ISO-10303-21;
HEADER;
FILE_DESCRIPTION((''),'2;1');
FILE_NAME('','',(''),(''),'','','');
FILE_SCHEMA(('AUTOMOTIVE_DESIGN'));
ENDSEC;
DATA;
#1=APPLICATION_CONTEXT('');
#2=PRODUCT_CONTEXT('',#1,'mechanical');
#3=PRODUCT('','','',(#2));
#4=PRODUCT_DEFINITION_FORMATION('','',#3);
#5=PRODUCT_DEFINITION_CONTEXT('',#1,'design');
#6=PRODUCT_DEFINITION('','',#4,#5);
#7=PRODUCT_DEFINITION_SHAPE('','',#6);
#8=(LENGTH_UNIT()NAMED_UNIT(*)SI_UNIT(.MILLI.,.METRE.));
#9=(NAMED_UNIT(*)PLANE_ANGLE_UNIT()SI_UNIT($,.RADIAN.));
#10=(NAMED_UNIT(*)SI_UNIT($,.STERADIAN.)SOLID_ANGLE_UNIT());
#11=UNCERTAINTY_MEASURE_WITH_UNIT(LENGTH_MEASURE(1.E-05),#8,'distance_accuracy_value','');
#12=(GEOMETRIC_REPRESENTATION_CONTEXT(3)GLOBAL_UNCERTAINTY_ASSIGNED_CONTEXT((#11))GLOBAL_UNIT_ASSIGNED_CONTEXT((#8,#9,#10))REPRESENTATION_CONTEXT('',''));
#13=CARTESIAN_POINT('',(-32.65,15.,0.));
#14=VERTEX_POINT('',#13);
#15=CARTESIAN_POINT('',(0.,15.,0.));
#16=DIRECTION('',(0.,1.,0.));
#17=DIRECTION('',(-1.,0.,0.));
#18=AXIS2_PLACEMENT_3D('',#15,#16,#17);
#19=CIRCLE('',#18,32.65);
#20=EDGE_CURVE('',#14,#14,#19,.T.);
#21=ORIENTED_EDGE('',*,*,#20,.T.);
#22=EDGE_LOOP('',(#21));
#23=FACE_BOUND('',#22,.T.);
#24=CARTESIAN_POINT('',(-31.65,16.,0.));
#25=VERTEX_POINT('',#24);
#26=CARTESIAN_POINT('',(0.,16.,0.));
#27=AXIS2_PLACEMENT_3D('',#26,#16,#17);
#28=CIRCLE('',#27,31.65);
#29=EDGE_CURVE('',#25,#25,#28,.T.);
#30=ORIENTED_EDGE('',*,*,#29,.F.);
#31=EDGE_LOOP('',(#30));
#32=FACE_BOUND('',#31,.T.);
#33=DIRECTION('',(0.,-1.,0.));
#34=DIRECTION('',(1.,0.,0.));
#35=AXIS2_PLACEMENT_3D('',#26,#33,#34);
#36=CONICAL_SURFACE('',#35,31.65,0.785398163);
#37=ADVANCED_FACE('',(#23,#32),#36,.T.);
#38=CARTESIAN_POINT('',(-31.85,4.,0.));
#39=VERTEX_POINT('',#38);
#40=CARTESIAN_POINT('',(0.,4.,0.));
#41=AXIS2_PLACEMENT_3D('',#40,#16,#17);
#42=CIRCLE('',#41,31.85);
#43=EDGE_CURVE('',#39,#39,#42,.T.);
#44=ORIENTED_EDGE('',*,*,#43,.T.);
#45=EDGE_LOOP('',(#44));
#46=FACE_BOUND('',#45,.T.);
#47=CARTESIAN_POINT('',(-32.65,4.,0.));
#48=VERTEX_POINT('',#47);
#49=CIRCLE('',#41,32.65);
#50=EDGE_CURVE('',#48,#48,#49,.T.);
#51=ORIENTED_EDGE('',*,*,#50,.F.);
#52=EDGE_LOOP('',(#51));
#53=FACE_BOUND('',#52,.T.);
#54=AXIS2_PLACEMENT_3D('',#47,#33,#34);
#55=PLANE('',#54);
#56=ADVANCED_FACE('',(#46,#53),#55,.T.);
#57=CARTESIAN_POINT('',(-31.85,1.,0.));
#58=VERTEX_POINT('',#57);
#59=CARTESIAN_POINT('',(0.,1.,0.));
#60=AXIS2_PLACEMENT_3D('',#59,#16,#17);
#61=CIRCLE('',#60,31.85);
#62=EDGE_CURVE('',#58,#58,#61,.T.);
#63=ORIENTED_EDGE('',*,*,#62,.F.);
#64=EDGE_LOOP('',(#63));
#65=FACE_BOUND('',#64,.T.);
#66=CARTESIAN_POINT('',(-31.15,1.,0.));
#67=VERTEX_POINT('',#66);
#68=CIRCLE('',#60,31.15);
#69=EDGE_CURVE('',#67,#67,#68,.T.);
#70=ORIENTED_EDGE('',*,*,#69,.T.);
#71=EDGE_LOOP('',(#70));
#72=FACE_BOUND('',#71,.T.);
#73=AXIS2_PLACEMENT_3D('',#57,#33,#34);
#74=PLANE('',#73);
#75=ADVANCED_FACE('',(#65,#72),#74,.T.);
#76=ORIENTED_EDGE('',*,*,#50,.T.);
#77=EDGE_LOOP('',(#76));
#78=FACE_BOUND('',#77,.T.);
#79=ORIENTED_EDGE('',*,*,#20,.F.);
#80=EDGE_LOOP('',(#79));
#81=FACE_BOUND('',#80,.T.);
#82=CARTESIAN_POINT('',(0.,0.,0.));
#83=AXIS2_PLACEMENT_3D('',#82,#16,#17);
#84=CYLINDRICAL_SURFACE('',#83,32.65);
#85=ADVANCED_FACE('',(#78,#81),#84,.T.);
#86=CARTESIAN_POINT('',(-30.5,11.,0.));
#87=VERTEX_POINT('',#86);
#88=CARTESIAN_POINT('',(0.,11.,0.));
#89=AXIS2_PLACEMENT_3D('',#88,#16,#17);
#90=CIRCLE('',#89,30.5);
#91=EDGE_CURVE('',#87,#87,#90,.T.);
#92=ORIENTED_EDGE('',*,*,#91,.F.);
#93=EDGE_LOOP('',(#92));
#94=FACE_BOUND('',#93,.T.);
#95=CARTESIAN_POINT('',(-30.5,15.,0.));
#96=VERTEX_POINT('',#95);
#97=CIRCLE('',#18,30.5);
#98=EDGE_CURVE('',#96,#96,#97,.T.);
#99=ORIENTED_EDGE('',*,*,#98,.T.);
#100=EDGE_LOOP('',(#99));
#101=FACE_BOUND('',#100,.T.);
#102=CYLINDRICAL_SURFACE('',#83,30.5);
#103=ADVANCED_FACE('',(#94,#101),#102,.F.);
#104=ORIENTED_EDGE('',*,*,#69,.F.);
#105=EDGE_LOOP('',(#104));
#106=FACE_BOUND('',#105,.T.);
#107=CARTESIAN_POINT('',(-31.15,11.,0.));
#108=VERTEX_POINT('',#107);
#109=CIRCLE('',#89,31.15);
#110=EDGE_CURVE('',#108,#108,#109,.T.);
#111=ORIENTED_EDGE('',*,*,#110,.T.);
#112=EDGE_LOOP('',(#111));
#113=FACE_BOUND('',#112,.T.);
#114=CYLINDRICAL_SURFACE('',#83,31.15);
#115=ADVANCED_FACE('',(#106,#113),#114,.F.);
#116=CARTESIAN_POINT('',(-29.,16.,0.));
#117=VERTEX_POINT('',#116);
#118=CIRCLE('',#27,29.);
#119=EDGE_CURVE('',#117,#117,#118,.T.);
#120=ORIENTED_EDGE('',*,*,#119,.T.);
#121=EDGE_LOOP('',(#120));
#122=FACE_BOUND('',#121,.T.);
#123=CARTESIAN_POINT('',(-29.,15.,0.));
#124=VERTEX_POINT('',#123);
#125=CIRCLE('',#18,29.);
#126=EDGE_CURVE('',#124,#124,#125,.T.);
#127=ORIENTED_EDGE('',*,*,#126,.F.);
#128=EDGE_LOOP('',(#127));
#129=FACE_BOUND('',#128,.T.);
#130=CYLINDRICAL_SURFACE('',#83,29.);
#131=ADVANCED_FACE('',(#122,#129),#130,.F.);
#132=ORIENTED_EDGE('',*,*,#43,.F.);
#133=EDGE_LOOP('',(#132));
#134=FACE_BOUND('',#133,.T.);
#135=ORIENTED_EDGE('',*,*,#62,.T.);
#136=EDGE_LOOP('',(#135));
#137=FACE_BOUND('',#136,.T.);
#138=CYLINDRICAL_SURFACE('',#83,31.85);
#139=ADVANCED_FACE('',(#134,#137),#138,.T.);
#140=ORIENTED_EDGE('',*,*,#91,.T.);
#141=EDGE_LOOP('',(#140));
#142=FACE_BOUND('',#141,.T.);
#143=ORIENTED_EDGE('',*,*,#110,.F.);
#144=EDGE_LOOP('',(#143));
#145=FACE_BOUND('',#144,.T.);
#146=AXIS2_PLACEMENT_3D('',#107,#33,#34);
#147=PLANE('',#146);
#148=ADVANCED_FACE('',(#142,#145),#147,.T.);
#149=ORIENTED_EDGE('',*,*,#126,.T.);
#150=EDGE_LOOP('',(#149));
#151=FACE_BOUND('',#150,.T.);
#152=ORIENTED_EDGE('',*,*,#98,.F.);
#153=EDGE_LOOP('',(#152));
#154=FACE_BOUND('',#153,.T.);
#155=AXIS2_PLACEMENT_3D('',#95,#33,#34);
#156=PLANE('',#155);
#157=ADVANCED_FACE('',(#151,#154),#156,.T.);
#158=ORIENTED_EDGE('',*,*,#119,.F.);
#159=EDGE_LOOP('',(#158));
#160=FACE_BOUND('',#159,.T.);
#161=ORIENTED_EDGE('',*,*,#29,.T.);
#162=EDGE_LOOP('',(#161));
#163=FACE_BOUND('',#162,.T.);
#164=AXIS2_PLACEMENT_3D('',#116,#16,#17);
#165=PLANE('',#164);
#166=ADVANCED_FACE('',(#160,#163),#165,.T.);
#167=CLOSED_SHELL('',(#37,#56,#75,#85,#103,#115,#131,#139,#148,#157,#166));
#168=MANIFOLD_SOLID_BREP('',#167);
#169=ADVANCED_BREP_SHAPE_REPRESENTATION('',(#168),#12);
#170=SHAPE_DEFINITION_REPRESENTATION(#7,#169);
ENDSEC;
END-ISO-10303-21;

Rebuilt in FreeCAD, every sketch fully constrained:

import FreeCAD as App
import Part
import Sketcher

V = App.Vector
Q = App.Units.Quantity


def add_polygon(sketch, points):
    """Adds a closed chain of lines whose ends are joined by coincident constraints."""
    first, n = sketch.GeometryCount, len(points)
    for a, b in zip(points, points[1:] + points[:1]):
        sketch.addGeometry(Part.LineSegment(App.Vector(*a, 0), App.Vector(*b, 0)), False)
    for i in range(n):
        sketch.addConstraint(Sketcher.Constraint("Coincident", first + i, 2, first + (i + 1) % n, 1))

doc = App.newDocument("Part")
body = doc.addObject("PartDesign::Body", "Body")

# Sketch on XY plane
sketch1 = body.newObject("Sketcher::SketchObject", "Sketch")
sketch1.AttachmentSupport = (doc.getObject("XY_Plane"), [""])
sketch1.MapMode = "FlatFace"
add_polygon(sketch1, [(-32.6, 4), (-31.9, 4), (-31.9, 1), (-31.1, 1), (-31.1, 11), (-30.5, 11), (-30.5, 15), (-29, 15), (-29, 16), (-31.6, 16), (-32.6, 15)])  # lines 0-10
sketch1.addConstraint([
    Sketcher.Constraint("Horizontal", 0),
    Sketcher.Constraint("Vertical", 1),
    Sketcher.Constraint("Horizontal", 2),
    Sketcher.Constraint("Vertical", 3),
    Sketcher.Constraint("Horizontal", 4),
    Sketcher.Constraint("Vertical", 5),
    Sketcher.Constraint("Horizontal", 6),
    Sketcher.Constraint("Vertical", 7),
    Sketcher.Constraint("Horizontal", 8),
    Sketcher.Constraint("Vertical", 10),
    Sketcher.Constraint("Horizontal", 6, 2, 9, 2),
    Sketcher.Constraint("DistanceY", 1, 2, 1, 1, Q("3 mm")),
    Sketcher.Constraint("DistanceY", 3, 1, 3, 2, Q("10 mm")),
    Sketcher.Constraint("DistanceY", 5, 1, 5, 2, Q("4 mm")),
    Sketcher.Constraint("DistanceY", 7, 1, 7, 2, Q("1 mm")),
    Sketcher.Constraint("Angle", 9, Q("-135 deg")),
    Sketcher.Constraint("DistanceX", 0, 1, 0, 2, Q("0.8 mm")),
    Sketcher.Constraint("DistanceX", 2, 1, 2, 2, Q("0.7 mm")),
    Sketcher.Constraint("DistanceX", 6, 1, 6, 2, Q("1.5 mm")),
    Sketcher.Constraint("DistanceY", -1, 1, 0, 2, Q("4 mm")),
    Sketcher.Constraint("DistanceX", 6, 2, -1, 1, Q("29 mm")),
    Sketcher.Constraint("DistanceX", 4, 1, 4, 2, Q("0.65 mm")),
])
revolution = body.newObject("PartDesign::Revolution", "Revolution")
revolution.Profile = sketch1
revolution.ReferenceAxis = (sketch1, ["V_Axis"])
revolution.Angle = 360

doc.recompute()
